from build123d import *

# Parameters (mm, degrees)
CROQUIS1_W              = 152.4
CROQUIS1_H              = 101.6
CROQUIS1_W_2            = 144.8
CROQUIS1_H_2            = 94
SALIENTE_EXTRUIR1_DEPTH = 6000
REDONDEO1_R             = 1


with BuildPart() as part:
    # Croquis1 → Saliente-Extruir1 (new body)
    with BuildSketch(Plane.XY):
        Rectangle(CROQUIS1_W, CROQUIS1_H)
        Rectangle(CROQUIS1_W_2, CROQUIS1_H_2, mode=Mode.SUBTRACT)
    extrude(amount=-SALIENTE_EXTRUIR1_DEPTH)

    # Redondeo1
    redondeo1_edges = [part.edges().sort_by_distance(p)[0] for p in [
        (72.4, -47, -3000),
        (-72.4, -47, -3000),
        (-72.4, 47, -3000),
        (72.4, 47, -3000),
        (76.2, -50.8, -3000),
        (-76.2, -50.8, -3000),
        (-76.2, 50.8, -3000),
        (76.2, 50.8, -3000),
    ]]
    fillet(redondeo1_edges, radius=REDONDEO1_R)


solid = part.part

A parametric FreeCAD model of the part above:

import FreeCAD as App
import Part
import Sketcher

V = App.Vector
Q = App.Units.Quantity


def edges_at(feature, points):
    """Names of the edges that pass closest to the given points."""
    edges = feature.Shape.Edges
    near = lambda p: min(range(len(edges)), key=lambda i: edges[i].distToShape(Part.Vertex(*p))[0])
    return sorted({f"Edge{near(p) + 1}" for p in points})

doc = App.newDocument("Part")
body = doc.addObject("PartDesign::Body", "Body")

# Sketch on XY plane
sketch1 = body.newObject("Sketcher::SketchObject", "Sketch")
sketch1.AttachmentSupport = (doc.getObject("XY_Plane"), [""])
sketch1.MapMode = "FlatFace"
sketch1.addGeometry(Part.LineSegment(V(-76, 51, 0), V(-76, -51, 0)), False)
sketch1.addGeometry(Part.LineSegment(V(-76, -51, 0), V(76, -51, 0)), False)
sketch1.addGeometry(Part.LineSegment(V(76, -51, 0), V(76, 51, 0)), False)
sketch1.addGeometry(Part.LineSegment(V(76, 51, 0), V(-76, 51, 0)), False)
sketch1.addGeometry(Part.LineSegment(V(72, -47, 0), V(-72, -47, 0)), False)
sketch1.addGeometry(Part.LineSegment(V(-72, -47, 0), V(-72, 47, 0)), False)
sketch1.addGeometry(Part.LineSegment(V(-72, 47, 0), V(72, 47, 0)), False)
sketch1.addGeometry(Part.LineSegment(V(72, 47, 0), V(72, -47, 0)), False)
sketch1.addConstraint(Sketcher.Constraint("Coincident", 0, 2, 1, 1))
sketch1.addConstraint(Sketcher.Constraint("Coincident", 1, 2, 2, 1))
sketch1.addConstraint(Sketcher.Constraint("Coincident", 2, 2, 3, 1))
sketch1.addConstraint(Sketcher.Constraint("Coincident", 3, 2, 0, 1))
sketch1.addConstraint(Sketcher.Constraint("Coincident", 4, 2, 5, 1))
sketch1.addConstraint(Sketcher.Constraint("Coincident", 5, 2, 6, 1))
sketch1.addConstraint(Sketcher.Constraint("Coincident", 6, 2, 7, 1))
sketch1.addConstraint(Sketcher.Constraint("Coincident", 7, 2, 4, 1))
sketch1.addConstraint(Sketcher.Constraint("Vertical", 0))
sketch1.addConstraint(Sketcher.Constraint("Horizontal", 1))
sketch1.addConstraint(Sketcher.Constraint("Vertical", 2))
sketch1.addConstraint(Sketcher.Constraint("Horizontal", 3))
sketch1.addConstraint(Sketcher.Constraint("Horizontal", 4))
sketch1.addConstraint(Sketcher.Constraint("Vertical", 5))
sketch1.addConstraint(Sketcher.Constraint("Horizontal", 6))
sketch1.addConstraint(Sketcher.Constraint("Vertical", 7))
sketch1.addConstraint(Sketcher.Constraint("Symmetric", 0, 2, 2, 2, -1, 1))
sketch1.addConstraint(Sketcher.Constraint("Symmetric", 4, 2, 6, 2, -1, 1))
sketch1.addConstraint(Sketcher.Constraint("DistanceY", 5, 1, 5, 2, Q("94 mm")))
sketch1.addConstraint(Sketcher.Constraint("DistanceX", 1, 1, 1, 2, Q("152.4 mm")))
sketch1.addConstraint(Sketcher.Constraint("DistanceX", 4, 2, 4, 1, Q("144.8 mm")))
sketch1.addConstraint(Sketcher.Constraint("DistanceY", 0, 2, 0, 1, Q("101.6 mm")))
pad1 = body.newObject("PartDesign::Pad", "Pad")
pad1.Profile = sketch1
pad1.Length = 6000
pad1.Reversed = True
doc.recompute()

fillet = body.newObject("PartDesign::Fillet", "Fillet")
fillet.Base = (pad1, edges_at(pad1, [
    (72.4, -47, -3000),
    (-72.4, -47, -3000),
    (-72.4, 47, -3000),
    (72.4, 47, -3000),
    (76.2, -50.8, -3000),
    (-76.2, -50.8, -3000),
    (-76.2, 50.8, -3000),
    (76.2, 50.8, -3000),
]))
fillet.Radius = 1

doc.recompute()
